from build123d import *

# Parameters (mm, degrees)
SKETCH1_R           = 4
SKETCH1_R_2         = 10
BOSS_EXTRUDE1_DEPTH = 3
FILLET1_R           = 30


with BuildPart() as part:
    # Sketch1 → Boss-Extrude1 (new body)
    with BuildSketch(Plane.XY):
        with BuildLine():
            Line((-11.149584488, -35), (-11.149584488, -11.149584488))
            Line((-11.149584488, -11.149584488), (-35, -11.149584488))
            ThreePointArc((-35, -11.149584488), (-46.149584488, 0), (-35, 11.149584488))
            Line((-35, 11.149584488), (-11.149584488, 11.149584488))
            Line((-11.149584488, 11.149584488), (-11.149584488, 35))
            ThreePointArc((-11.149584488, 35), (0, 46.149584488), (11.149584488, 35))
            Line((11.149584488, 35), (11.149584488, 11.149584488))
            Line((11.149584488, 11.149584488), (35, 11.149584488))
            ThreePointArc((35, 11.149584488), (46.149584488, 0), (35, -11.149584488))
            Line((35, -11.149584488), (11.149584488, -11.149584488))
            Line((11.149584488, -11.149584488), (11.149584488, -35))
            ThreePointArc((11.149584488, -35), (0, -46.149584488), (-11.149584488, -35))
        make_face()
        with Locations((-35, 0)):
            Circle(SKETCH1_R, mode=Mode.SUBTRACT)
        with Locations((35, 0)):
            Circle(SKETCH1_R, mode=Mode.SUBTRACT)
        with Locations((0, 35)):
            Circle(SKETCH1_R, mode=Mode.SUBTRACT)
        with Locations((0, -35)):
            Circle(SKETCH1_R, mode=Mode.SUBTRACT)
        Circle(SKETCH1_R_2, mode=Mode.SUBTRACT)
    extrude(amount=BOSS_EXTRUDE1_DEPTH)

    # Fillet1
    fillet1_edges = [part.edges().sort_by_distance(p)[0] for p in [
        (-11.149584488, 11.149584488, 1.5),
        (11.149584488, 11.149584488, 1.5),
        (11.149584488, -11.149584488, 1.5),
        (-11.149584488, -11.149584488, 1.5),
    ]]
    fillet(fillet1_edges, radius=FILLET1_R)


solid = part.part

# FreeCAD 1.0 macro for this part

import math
import FreeCAD as App
import Part
import Sketcher

V = App.Vector
Q = App.Units.Quantity


def edges_at(feature, points):
    """Names of the edges that pass closest to the given points."""
    edges = feature.Shape.Edges
    near = lambda p: min(range(len(edges)), key=lambda i: edges[i].distToShape(Part.Vertex(*p))[0])
    return sorted({f"Edge{near(p) + 1}" for p in points})

doc = App.newDocument("Part")
params = doc.addObject("Spreadsheet::Sheet", "Params")
for row, (alias, value) in enumerate([
    ("sketch1_diameter", "8 mm"),
    ("sketch1_diameter2", "20 mm"),
    ("pad1_length", "3 mm"),
    ("fillet_radius", "30 mm"),
], start=1):
    params.set(f"A{row}", alias)
    params.set(f"B{row}", "=" + value)
    params.setAlias(f"B{row}", alias)

body = doc.addObject("PartDesign::Body", "Body")

sketch1 = doc.addObject("Sketcher::SketchObject", "Sketch")
body.addObject(sketch1)
sketch1.AttachmentSupport = (doc.XY_Plane, [""])
sketch1.MapMode = "FlatFace"
sketch1.addGeometry([
    Part.LineSegment(V(-11.1, -11.1, 0), V(-11.1, -35, 0)),
    Part.ArcOfCircle(Part.Circle(V(0, -35, 0), V(0, 0, 1), 11.1), math.radians(180), math.radians(360)),
    Part.LineSegment(V(11.1, -35, 0), V(11.1, -11.1, 0)),
    Part.LineSegment(V(11.1, -11.1, 0), V(35, -11.1, 0)),
    Part.ArcOfCircle(Part.Circle(V(35, 0, 0), V(0, 0, 1), 11.1), math.radians(-90), math.radians(90)),
    Part.LineSegment(V(35, 11.1, 0), V(11.1, 11.1, 0)),
    Part.LineSegment(V(11.1, 11.1, 0), V(11.1, 35, 0)),
    Part.ArcOfCircle(Part.Circle(V(0, 35, 0), V(0, 0, 1), 11.1), math.radians(0), math.radians(180)),
    Part.LineSegment(V(-11.1, 35, 0), V(-11.1, 11.1, 0)),
    Part.LineSegment(V(-11.1, 11.1, 0), V(-35, 11.1, 0)),
    Part.ArcOfCircle(Part.Circle(V(-35, 0, 0), V(0, 0, 1), 11.1), math.radians(90), math.radians(270)),
    Part.LineSegment(V(-35, -11.1, 0), V(-11.1, -11.1, 0)),
    Part.Circle(V(0, -35, 0), V(0, 0, 1), 4),
    Part.Circle(V(35, 0, 0), V(0, 0, 1), 4),
    Part.Circle(V(0, 0, 0), V(0, 0, 1), 10),
    Part.Circle(V(-35, 0, 0), V(0, 0, 1), 4),
    Part.Circle(V(0, 35, 0), V(0, 0, 1), 4),
], False)
sketch1.addConstraint([
    Sketcher.Constraint("Tangent", 0, 2, 1, 1),
    Sketcher.Constraint("Tangent", 1, 2, 2, 1),
    Sketcher.Constraint("Coincident", 2, 2, 3, 1),
    Sketcher.Constraint("Tangent", 3, 2, 4, 1),
    Sketcher.Constraint("Tangent", 4, 2, 5, 1),
    Sketcher.Constraint("Coincident", 5, 2, 6, 1),
    Sketcher.Constraint("Tangent", 6, 2, 7, 1),
    Sketcher.Constraint("Tangent", 7, 2, 8, 1),
    Sketcher.Constraint("Coincident", 8, 2, 9, 1),
    Sketcher.Constraint("Tangent", 9, 2, 10, 1),
    Sketcher.Constraint("Tangent", 10, 2, 11, 1),
    Sketcher.Constraint("Coincident", 11, 2, 0, 1),
    Sketcher.Constraint("Vertical", 0),
    Sketcher.Constraint("Vertical", 2),
    Sketcher.Constraint("Horizontal", 3),
    Sketcher.Constraint("Horizontal", 5),
    Sketcher.Constraint("Vertical", 6),
    Sketcher.Constraint("Vertical", 8),
    Sketcher.Constraint("Horizontal", 9),
    Sketcher.Constraint("Horizontal", 11),
    Sketcher.Constraint("Coincident", 14, 3, -1, 1),
    Sketcher.Constraint("Coincident", 12, 3, 1, 3),
    Sketcher.Constraint("Coincident", 13, 3, 4, 3),
    Sketcher.Constraint("Coincident", 15, 3, 10, 3),
    Sketcher.Constraint("Coincident", 16, 3, 7, 3),
    Sketcher.Constraint("Equal", 1, 4),
    Sketcher.Constraint("Equal", 4, 7),
    Sketcher.Constraint("Equal", 7, 10),
    Sketcher.Constraint("Equal", 12, 13),
    Sketcher.Constraint("Equal", 13, 15),
    Sketcher.Constraint("Equal", 15, 16),
    Sketcher.Constraint("Symmetric", 1, 3, 7, 3, -1, 1),
    Sketcher.Constraint("Symmetric", 4, 3, 10, 3, -1, 1),
    Sketcher.Constraint("Symmetric", 5, 2, 8, 2, -2),
    Sketcher.Constraint("Equal", 11, 0),
    Sketcher.Constraint("Diameter", 12, Q("8 mm")),
    Sketcher.Constraint("Diameter", 14, Q("20 mm")),
    Sketcher.Constraint("DistanceY", 1, 3, -1, 1, Q("35 mm")),
    Sketcher.Constraint("Radius", 1, Q("11.149584 mm")),
])
sketch1.setExpression("Constraints[35]", "Params.sketch1_diameter")
sketch1.setExpression("Constraints[36]", "Params.sketch1_diameter2")
pad1 = doc.addObject("PartDesign::Pad", "Pad")
body.addObject(pad1)
pad1.Profile = sketch1
pad1.setExpression("Length", "Params.pad1_length")
doc.recompute()

fillet = doc.addObject("PartDesign::Fillet", "Fillet")
body.addObject(fillet)
fillet.Base = (pad1, edges_at(pad1, [
    (-11.15, 11.15, 1.5),
    (11.15, 11.15, 1.5),
    (11.15, -11.15, 1.5),
    (-11.15, -11.15, 1.5),
]))
fillet.setExpression("Radius", "Params.fillet_radius")

doc.recompute()
